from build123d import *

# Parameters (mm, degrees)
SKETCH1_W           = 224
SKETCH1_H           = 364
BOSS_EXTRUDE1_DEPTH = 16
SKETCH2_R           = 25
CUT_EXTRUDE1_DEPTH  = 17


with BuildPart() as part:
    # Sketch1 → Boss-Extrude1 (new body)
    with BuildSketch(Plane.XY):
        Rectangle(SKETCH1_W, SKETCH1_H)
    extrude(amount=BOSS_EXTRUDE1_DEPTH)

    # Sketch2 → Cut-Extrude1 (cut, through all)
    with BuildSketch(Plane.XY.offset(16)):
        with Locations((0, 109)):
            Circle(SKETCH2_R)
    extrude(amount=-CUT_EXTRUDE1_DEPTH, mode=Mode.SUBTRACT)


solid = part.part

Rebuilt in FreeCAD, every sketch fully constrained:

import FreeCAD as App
import Part
import Sketcher

V = App.Vector


def add_polygon(sketch, points):
    """Adds a closed chain of lines whose ends are joined by coincident constraints."""
    first, n = sketch.GeometryCount, len(points)
    for a, b in zip(points, points[1:] + points[:1]):
        sketch.addGeometry(Part.LineSegment(App.Vector(*a, 0), App.Vector(*b, 0)), False)
    for i in range(n):
        sketch.addConstraint(Sketcher.Constraint("Coincident", first + i, 2, first + (i + 1) % n, 1))

doc = App.newDocument("Part")
body = doc.addObject("PartDesign::Body", "Body")

# Sketch on XY plane
sketch1 = doc.addObject("Sketcher::SketchObject", "Sketch")
body.addObject(sketch1)
sketch1.AttachmentSupport = (doc.XY_Plane, [""])
sketch1.MapMode = "FlatFace"
add_polygon(sketch1, [(-112, 182), (-112, -182), (112, -182), (112, 182)])  # lines 0-3
sketch1.addConstraint([
    Sketcher.Constraint("Vertical", 0),
    Sketcher.Constraint("Horizontal", 1),
    Sketcher.Constraint("Vertical", 2),
    Sketcher.Constraint("Horizontal", 3),
    Sketcher.Constraint("Symmetric", 0, 2, 2, 2, -1, 1),
    Sketcher.Constraint("DistanceX", 1, 1, 1, 2, 224.0),
    Sketcher.Constraint("DistanceY", 0, 2, 0, 1, 364.0),
])
pad1 = doc.addObject("PartDesign::Pad", "Pad")
body.addObject(pad1)
pad1.Profile = sketch1
pad1.Length = 16

# Sketch on XY plane
sketch2 = doc.addObject("Sketcher::SketchObject", "Sketch001")
body.addObject(sketch2)
sketch2.AttachmentSupport = (doc.XY_Plane, [""])
sketch2.MapMode = "FlatFace"
sketch2.AttachmentOffset = App.Placement(V(0, 0, 16), App.Rotation())
sketch2.addGeometry(Part.Circle(V(0, 109, 0), V(0, 0, 1), 25), False)
sketch2.addConstraint([
    Sketcher.Constraint("PointOnObject", 0, 3, -2),
    Sketcher.Constraint("Diameter", 0, 50.0),
    Sketcher.Constraint("DistanceY", -1, 1, 0, 3, 109.0),
])
pocket1 = doc.addObject("PartDesign::Pocket", "Pocket")
body.addObject(pocket1)
pocket1.Profile = sketch2
pocket1.Type = "ThroughAll"

doc.recompute()
